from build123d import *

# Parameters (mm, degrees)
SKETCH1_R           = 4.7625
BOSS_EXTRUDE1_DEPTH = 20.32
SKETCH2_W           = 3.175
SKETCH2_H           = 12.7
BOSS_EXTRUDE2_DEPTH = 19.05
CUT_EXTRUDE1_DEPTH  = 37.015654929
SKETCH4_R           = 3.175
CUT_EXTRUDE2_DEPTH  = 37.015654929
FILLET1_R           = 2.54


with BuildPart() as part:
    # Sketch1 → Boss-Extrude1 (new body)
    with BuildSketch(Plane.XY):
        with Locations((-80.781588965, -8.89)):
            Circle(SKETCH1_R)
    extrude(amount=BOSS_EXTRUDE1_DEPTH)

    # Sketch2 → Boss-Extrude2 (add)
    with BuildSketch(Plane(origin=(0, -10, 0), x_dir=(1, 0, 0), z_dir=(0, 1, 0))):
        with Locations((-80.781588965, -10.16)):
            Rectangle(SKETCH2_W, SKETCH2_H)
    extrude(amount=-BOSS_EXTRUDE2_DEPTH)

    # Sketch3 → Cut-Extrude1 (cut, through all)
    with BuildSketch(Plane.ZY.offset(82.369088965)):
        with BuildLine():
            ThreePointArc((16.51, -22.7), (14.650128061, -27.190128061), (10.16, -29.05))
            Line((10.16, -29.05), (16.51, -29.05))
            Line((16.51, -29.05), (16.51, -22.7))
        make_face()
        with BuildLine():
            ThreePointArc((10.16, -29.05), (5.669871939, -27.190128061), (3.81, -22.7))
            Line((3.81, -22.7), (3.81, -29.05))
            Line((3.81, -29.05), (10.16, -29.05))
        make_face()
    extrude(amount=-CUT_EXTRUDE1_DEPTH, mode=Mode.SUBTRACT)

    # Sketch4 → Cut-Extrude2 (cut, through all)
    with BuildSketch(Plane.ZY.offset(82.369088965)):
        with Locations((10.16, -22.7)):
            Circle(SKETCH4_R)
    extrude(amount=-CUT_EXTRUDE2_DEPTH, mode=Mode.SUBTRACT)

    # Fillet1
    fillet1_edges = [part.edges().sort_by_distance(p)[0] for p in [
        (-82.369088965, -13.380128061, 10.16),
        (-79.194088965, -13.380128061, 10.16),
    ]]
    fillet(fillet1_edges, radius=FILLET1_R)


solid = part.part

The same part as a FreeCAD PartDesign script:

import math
import FreeCAD as App
import Part
import Sketcher
from FreeCAD import Vector
Q = App.Units.Quantity


def edges_at(feature, points):
    """Names of the edges that pass closest to the given points."""
    edges = feature.Shape.Edges
    near = lambda p: min(range(len(edges)), key=lambda i: edges[i].distToShape(Part.Vertex(*p))[0])
    return sorted({f"Edge{near(p) + 1}" for p in points})


def add_polygon(sketch, points):
    """Adds a closed chain of lines whose ends are joined by coincident constraints."""
    first, n = sketch.GeometryCount, len(points)
    for a, b in zip(points, points[1:] + points[:1]):
        sketch.addGeometry(Part.LineSegment(App.Vector(*a, 0), App.Vector(*b, 0)), False)
    for i in range(n):
        sketch.addConstraint(Sketcher.Constraint("Coincident", first + i, 2, first + (i + 1) % n, 1))

doc = App.newDocument("Part")
body = doc.addObject("PartDesign::Body", "Body")

# Sketch on XY plane
sketch1 = body.newObject("Sketcher::SketchObject", "Sketch")
sketch1.AttachmentSupport = (doc.getObject("XY_Plane"), [""])
sketch1.MapMode = "FlatFace"
sketch1.addGeometry(Part.Circle(Vector(-80.781589, -8.89, 0), Vector(0, 0, 1), 4.7625), False)
sketch1.addConstraint([
    Sketcher.Constraint("Diameter", 0, Q("0.375 in")),
    Sketcher.Constraint("DistanceY", 0, 3, -1, 1, Q("0.35 in")),
    Sketcher.Constraint("DistanceX", 0, 3, -1, 1, 80.781589),
])
pad1 = body.newObject("PartDesign::Pad", "Pad")
pad1.Profile = sketch1
pad1.Length = Q("0.8 in")

# Sketch on XZ plane
sketch2 = body.newObject("Sketcher::SketchObject", "Sketch001")
sketch2.AttachmentSupport = (doc.getObject("XZ_Plane"), [""])
sketch2.MapMode = "FlatFace"
sketch2.AttachmentOffset = App.Placement(Vector(0, 0, 10), App.Rotation())
add_polygon(sketch2, [(-82.369089, 3.81), (-82.369089, 16.51), (-79.194089, 16.51), (-79.194089, 3.81)])  # lines 0-3
sketch2.addConstraint([
    Sketcher.Constraint("Vertical", 0),
    Sketcher.Constraint("Horizontal", 1),
    Sketcher.Constraint("Vertical", 2),
    Sketcher.Constraint("Horizontal", 3),
    Sketcher.Constraint("DistanceY", 0, 1, 0, 2, Q("0.5 in")),
    Sketcher.Constraint("DistanceX", 1, 1, 1, 2, Q("0.125 in")),
    Sketcher.Constraint("DistanceY", -1, 1, 0, 2, Q("0.65 in")),
    Sketcher.Constraint("DistanceX", 0, 2, -1, 1, 82.369089),
])
pad2 = body.newObject("PartDesign::Pad", "Pad001")
pad2.Profile = sketch2
pad2.Length = Q("0.75 in")

# Sketch on YZ plane
sketch3 = body.newObject("Sketcher::SketchObject", "Sketch002")
sketch3.AttachmentSupport = (doc.getObject("YZ_Plane"), [""])
sketch3.MapMode = "FlatFace"
sketch3.AttachmentOffset = App.Placement(Vector(0, 0, -82.369089), App.Rotation())
sketch3.addGeometry([
    Part.ArcOfCircle(Part.Circle(Vector(-22.7, 10.16, 0), Vector(0, 0, 1), 6.35), math.radians(90), math.radians(180)),  # 0
    Part.LineSegment(Vector(-29.05, 10.16, 0), Vector(-29.05, 16.51, 0)),  # 1
    Part.LineSegment(Vector(-29.05, 16.51, 0), Vector(-22.7, 16.51, 0)),  # 2
    Part.ArcOfCircle(Part.Circle(Vector(-22.7, 10.16, 0), Vector(0, 0, 1), 6.35), math.radians(180), math.radians(270)),  # 3
    Part.LineSegment(Vector(-22.7, 3.81, 0), Vector(-29.05, 3.81, 0)),  # 4
    Part.LineSegment(Vector(-29.05, 3.81, 0), Vector(-29.05, 10.16, 0)),  # 5
], False)
sketch3.addConstraint([
    Sketcher.Constraint("Tangent", 0, 2, 1, 1),
    Sketcher.Constraint("Coincident", 1, 2, 2, 1),
    Sketcher.Constraint("Tangent", 2, 2, 0, 1),
    Sketcher.Constraint("Tangent", 3, 2, 4, 1),
    Sketcher.Constraint("Coincident", 4, 2, 5, 1),
    Sketcher.Constraint("Tangent", 5, 2, 3, 1),
    Sketcher.Constraint("Vertical", 1),
    Sketcher.Constraint("Horizontal", 2),
    Sketcher.Constraint("Horizontal", 4),
    Sketcher.Constraint("Vertical", 5),
    Sketcher.Constraint("Coincident", 3, 3, 0, 3),
    Sketcher.Constraint("Equal", 0, 3),
    Sketcher.Constraint("Radius", 0, Q("0.25 in")),
    Sketcher.Constraint("DistanceY", -1, 1, 0, 3, Q("0.4 in")),
    Sketcher.Constraint("DistanceX", 0, 3, -1, 1, 22.7),
])
pocket1 = body.newObject("PartDesign::Pocket", "Pocket")
pocket1.Profile = sketch3
pocket1.Type = "ThroughAll"
pocket1.Reversed = True

# Sketch on YZ plane
sketch4 = body.newObject("Sketcher::SketchObject", "Sketch003")
sketch4.AttachmentSupport = (doc.getObject("YZ_Plane"), [""])
sketch4.MapMode = "FlatFace"
sketch4.AttachmentOffset = App.Placement(Vector(0, 0, -82.369089), App.Rotation())
sketch4.addGeometry(Part.Circle(Vector(-22.7, 10.16, 0), Vector(0, 0, 1), 3.175), False)
sketch4.addConstraint([
    Sketcher.Constraint("Diameter", 0, Q("0.25 in")),
    Sketcher.Constraint("DistanceY", -1, 1, 0, 3, Q("0.4 in")),
    Sketcher.Constraint("DistanceX", 0, 3, -1, 1, 22.7),
])
pocket2 = body.newObject("PartDesign::Pocket", "Pocket001")
pocket2.Profile = sketch4
pocket2.Type = "ThroughAll"
pocket2.Reversed = True
doc.recompute()

fillet = body.newObject("PartDesign::Fillet", "Fillet")
fillet.Base = (pocket2, edges_at(pocket2, [(-82.369, -13.38, 10.16), (-79.194, -13.38, 10.16)]))
fillet.Radius = Q("0.1 in")

doc.recompute()
